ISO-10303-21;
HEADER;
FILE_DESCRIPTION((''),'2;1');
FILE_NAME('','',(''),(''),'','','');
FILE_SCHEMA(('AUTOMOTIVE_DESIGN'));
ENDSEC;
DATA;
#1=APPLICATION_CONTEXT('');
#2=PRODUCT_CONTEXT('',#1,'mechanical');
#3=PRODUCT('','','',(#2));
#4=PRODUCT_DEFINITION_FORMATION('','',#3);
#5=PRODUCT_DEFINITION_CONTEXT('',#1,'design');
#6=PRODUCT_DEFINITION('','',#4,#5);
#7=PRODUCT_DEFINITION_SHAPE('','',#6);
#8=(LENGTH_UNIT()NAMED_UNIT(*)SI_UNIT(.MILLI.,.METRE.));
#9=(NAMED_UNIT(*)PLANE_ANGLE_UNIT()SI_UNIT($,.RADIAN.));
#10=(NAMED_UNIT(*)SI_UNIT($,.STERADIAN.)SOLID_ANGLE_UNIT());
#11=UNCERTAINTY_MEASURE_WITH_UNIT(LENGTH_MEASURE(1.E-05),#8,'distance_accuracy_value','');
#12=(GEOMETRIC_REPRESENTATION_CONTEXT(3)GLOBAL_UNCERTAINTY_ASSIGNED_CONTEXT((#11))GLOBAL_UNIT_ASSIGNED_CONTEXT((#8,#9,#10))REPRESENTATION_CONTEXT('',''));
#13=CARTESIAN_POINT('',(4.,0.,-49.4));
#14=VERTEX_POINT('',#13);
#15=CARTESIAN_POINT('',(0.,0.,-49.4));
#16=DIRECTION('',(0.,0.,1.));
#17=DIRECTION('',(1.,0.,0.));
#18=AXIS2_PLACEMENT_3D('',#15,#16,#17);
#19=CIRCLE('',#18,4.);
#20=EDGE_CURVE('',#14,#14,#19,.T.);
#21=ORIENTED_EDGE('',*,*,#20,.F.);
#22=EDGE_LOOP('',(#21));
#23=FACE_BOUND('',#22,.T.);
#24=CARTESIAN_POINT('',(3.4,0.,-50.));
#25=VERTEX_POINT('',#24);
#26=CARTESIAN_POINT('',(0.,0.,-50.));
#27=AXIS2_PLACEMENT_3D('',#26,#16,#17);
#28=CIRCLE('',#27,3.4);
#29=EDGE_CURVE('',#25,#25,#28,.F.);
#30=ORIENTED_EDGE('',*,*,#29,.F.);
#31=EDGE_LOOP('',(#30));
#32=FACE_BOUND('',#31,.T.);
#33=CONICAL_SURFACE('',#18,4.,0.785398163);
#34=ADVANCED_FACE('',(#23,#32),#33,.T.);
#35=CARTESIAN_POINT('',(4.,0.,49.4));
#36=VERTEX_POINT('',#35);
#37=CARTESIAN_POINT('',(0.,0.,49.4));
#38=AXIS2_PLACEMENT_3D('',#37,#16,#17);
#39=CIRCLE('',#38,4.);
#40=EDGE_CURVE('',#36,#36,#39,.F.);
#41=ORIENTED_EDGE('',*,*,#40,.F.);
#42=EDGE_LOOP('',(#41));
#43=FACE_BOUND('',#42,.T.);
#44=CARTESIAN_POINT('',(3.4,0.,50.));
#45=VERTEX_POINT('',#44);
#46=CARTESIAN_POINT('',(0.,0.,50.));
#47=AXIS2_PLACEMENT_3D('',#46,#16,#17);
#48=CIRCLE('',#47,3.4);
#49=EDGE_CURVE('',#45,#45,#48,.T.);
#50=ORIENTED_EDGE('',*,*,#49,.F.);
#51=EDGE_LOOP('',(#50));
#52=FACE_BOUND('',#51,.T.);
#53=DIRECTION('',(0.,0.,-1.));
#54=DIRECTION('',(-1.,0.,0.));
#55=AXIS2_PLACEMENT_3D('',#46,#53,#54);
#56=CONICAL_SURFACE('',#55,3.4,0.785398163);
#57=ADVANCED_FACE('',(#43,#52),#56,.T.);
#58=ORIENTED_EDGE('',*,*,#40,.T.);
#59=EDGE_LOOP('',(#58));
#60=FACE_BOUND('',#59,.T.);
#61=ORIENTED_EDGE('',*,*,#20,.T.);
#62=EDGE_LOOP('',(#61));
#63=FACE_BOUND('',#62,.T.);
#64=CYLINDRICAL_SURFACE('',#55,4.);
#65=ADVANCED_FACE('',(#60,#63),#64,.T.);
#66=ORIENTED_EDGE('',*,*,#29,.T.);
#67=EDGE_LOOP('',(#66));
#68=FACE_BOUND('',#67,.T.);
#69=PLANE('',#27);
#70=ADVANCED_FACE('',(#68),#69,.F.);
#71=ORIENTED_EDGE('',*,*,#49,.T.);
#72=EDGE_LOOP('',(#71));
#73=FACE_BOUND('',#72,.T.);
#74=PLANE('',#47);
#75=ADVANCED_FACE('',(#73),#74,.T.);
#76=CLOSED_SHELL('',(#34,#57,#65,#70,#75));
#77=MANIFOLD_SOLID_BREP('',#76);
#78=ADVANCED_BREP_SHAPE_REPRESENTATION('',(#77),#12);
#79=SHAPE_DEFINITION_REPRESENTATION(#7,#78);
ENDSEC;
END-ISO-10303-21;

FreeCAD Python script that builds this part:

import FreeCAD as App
import Part
import Sketcher

V = App.Vector


def edges_at(feature, points):
    """Names of the edges that pass closest to the given points."""
    edges = feature.Shape.Edges
    near = lambda p: min(range(len(edges)), key=lambda i: edges[i].distToShape(Part.Vertex(*p))[0])
    return sorted({f"Edge{near(p) + 1}" for p in points})

doc = App.newDocument("Part")
body = doc.addObject("PartDesign::Body", "Body")

# Sketch on XY plane
sketch1 = body.newObject("Sketcher::SketchObject", "Sketch")
sketch1.AttachmentSupport = (doc.getObject("XY_Plane"), [""])
sketch1.MapMode = "FlatFace"
sketch1.addGeometry(Part.Circle(V(0, 0, 0), V(0, 0, 1), 4), False)
sketch1.addConstraint(Sketcher.Constraint("Coincident", 0, 3, -1, 1))
sketch1.addConstraint(Sketcher.Constraint("Diameter", 0, 8.0))
pad1 = body.newObject("PartDesign::Pad", "Pad")
pad1.Profile = sketch1
pad1.Type = "TwoLengths"
pad1.Length = 50
pad1.Length2 = 50
doc.recompute()

chamfer = body.newObject("PartDesign::Chamfer", "Chamfer")
chamfer.Base = (pad1, edges_at(pad1, [(-4, 0, -50), (-4, 0, 50)]))
chamfer.Size = 0.6

doc.recompute()
